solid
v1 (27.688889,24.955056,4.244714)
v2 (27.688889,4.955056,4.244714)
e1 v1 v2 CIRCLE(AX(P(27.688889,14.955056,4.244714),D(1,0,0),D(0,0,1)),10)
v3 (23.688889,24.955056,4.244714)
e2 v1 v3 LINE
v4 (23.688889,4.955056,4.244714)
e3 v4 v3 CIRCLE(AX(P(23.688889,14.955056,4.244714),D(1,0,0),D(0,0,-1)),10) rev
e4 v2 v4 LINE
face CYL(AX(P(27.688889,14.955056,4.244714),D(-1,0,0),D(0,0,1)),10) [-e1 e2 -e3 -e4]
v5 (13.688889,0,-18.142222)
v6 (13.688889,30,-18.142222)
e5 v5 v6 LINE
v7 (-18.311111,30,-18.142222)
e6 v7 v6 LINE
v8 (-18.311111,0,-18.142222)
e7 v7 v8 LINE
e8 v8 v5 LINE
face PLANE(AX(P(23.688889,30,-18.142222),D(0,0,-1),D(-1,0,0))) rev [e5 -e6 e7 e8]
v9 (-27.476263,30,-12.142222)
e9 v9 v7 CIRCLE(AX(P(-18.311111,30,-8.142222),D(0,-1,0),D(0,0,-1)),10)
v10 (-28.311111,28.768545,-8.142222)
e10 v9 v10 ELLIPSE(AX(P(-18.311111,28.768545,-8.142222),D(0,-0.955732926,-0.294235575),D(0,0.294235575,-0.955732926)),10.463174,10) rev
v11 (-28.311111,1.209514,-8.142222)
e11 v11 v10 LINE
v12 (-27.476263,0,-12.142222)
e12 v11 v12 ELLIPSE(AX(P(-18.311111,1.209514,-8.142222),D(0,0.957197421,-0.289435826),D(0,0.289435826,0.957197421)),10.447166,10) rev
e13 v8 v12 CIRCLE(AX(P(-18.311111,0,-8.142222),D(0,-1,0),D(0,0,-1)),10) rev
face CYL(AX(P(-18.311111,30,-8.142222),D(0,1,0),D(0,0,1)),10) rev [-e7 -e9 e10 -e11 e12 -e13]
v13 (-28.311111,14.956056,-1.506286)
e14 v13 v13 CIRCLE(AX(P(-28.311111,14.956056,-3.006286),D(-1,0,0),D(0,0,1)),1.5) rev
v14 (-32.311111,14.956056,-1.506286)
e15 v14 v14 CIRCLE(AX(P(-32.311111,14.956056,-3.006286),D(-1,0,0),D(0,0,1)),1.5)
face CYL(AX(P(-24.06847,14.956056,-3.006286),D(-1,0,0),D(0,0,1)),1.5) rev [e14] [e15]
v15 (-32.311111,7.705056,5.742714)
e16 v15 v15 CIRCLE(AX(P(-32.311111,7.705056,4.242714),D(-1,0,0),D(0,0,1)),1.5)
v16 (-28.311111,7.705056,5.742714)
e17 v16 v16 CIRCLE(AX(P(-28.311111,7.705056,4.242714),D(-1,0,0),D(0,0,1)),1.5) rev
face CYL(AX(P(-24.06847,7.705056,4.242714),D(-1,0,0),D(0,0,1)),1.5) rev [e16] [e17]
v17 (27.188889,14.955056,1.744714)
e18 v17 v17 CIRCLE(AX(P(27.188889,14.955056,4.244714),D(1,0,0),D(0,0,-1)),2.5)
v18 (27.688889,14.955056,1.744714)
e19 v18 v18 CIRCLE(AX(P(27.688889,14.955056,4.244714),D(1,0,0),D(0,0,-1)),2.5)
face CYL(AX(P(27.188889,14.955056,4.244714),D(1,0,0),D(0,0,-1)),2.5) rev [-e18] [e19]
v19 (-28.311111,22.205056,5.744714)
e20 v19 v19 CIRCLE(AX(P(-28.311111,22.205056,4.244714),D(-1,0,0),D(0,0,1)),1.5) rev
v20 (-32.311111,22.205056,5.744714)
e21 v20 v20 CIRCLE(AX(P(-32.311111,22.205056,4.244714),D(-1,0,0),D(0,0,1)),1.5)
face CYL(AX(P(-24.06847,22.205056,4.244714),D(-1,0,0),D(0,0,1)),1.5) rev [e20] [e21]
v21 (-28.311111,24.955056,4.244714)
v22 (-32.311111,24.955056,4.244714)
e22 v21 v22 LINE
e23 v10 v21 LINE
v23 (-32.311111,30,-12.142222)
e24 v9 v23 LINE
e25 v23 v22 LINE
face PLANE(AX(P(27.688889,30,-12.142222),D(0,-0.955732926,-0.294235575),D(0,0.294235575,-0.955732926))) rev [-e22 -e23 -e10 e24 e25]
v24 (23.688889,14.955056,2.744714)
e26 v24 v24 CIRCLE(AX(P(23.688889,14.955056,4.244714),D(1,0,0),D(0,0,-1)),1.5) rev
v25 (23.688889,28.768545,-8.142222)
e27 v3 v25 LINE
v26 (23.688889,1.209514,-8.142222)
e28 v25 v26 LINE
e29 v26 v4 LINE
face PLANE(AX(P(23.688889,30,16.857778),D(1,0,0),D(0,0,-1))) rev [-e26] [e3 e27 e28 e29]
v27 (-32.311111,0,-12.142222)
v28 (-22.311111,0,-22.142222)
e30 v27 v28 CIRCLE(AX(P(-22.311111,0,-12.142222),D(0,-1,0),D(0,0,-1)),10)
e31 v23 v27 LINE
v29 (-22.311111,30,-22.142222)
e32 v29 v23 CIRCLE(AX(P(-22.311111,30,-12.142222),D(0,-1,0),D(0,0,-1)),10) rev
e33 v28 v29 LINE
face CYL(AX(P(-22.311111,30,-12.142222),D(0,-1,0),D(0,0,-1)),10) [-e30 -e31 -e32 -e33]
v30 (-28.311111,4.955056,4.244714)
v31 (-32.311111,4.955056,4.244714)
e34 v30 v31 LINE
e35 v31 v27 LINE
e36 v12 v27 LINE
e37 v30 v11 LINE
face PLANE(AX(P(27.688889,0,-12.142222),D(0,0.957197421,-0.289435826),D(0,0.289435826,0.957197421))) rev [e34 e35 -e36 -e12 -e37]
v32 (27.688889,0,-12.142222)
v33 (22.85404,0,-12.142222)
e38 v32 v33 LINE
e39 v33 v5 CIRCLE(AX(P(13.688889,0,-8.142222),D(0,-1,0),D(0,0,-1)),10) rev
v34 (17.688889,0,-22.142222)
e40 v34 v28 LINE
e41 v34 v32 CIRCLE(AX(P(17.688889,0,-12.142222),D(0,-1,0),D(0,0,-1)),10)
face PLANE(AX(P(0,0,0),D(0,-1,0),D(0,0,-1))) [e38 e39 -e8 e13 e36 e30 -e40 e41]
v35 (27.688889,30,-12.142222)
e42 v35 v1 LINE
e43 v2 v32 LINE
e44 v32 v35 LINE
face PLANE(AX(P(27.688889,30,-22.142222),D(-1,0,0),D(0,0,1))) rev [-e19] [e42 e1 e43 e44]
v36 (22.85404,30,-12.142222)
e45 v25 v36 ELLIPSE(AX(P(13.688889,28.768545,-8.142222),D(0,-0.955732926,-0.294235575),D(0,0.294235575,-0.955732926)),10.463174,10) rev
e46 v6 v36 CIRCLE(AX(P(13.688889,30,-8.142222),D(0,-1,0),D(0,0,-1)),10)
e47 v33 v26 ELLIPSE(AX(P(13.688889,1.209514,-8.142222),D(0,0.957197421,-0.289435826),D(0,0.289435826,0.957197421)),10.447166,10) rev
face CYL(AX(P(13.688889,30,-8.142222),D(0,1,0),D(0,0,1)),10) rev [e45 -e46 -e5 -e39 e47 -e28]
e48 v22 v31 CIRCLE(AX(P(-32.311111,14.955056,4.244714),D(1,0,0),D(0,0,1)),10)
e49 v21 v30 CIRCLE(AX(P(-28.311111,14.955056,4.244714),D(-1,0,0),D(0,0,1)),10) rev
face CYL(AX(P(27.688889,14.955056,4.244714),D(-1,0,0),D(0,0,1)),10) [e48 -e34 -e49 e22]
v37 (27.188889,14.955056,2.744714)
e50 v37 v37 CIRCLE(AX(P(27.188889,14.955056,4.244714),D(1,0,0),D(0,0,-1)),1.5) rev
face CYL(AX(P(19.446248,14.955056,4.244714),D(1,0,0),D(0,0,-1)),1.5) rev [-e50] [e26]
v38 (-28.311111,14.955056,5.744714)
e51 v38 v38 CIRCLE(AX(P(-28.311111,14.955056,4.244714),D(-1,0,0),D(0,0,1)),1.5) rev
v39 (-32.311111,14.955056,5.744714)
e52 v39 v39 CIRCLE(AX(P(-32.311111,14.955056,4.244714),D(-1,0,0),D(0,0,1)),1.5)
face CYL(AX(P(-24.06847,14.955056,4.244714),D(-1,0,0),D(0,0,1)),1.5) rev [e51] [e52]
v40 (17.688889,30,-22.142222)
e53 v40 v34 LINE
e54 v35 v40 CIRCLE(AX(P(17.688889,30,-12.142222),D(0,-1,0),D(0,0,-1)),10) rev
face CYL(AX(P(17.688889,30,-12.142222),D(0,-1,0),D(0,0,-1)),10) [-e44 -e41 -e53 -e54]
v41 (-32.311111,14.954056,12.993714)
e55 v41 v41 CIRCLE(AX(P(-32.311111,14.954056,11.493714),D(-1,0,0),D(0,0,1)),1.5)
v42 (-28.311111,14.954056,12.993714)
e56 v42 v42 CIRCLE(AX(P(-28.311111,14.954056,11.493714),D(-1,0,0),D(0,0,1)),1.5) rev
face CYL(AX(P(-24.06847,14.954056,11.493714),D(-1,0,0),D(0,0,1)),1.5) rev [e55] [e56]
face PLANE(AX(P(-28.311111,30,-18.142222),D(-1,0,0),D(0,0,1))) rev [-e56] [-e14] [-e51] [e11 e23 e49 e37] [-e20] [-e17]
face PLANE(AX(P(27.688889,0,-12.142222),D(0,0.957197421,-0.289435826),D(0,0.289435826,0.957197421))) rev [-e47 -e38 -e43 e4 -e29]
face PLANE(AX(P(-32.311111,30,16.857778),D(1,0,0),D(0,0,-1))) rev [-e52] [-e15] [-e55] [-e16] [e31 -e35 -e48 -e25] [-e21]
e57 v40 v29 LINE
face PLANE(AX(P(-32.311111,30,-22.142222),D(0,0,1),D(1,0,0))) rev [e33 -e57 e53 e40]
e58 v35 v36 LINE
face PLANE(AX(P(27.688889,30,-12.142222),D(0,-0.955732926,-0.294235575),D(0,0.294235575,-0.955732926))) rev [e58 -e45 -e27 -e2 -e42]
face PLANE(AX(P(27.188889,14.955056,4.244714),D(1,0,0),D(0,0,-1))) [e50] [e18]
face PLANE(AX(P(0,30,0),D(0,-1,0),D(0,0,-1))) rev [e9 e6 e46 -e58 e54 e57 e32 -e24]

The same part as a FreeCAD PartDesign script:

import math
import FreeCAD as App
import Part
import Sketcher

V = App.Vector


def edges_at(feature, points):
    """Names of the edges that pass closest to the given points."""
    edges = feature.Shape.Edges
    near = lambda p: min(range(len(edges)), key=lambda i: edges[i].distToShape(Part.Vertex(*p))[0])
    return sorted({f"Edge{near(p) + 1}" for p in points})


def add_polygon(sketch, points):
    """Adds a closed chain of lines whose ends are joined by coincident constraints."""
    first, n = sketch.GeometryCount, len(points)
    for a, b in zip(points, points[1:] + points[:1]):
        sketch.addGeometry(Part.LineSegment(App.Vector(*a, 0), App.Vector(*b, 0)), False)
    for i in range(n):
        sketch.addConstraint(Sketcher.Constraint("Coincident", first + i, 2, first + (i + 1) % n, 1))

doc = App.newDocument("Part")
body = doc.addObject("PartDesign::Body", "Body")

# Sketch on XZ plane
sketch1 = doc.addObject("Sketcher::SketchObject", "Sketch")
body.addObject(sketch1)
sketch1.AttachmentSupport = (doc.XZ_Plane, [""])
sketch1.MapMode = "FlatFace"
add_polygon(sketch1, [(23.688889, -18.142222), (23.688889, 16.857778), (27.688889, 16.857778), (27.688889, -22.142222), (-32.311111, -22.142222), (-32.311111, 16.857778), (-28.311111, 16.857778), (-28.311111, -18.142222)])  # lines 0-7
sketch1.addConstraint([
    Sketcher.Constraint("Vertical", 0),
    Sketcher.Constraint("Horizontal", 1),
    Sketcher.Constraint("Vertical", 2),
    Sketcher.Constraint("Horizontal", 3),
    Sketcher.Constraint("Vertical", 4),
    Sketcher.Constraint("Horizontal", 5),
    Sketcher.Constraint("Vertical", 6),
    Sketcher.Constraint("Horizontal", 7),
    Sketcher.Constraint("Horizontal", 1, 2, 4, 2),
    Sketcher.Constraint("Equal", 1, 5),
    Sketcher.Constraint("DistanceX", 1, 1, 1, 2, 4.0),
    Sketcher.Constraint("DistanceX", 3, 2, 3, 1, 60.0),
    Sketcher.Constraint("DistanceY", 0, 1, 0, 2, 35.0),
    Sketcher.Constraint("DistanceY", 2, 2, 2, 1, 39.0),
    Sketcher.Constraint("DistanceX", -1, 1, 0, 2, 23.688889),
    Sketcher.Constraint("DistanceY", -1, 1, 0, 2, 16.857778),
])
pad1 = doc.addObject("PartDesign::Pad", "Pad")
body.addObject(pad1)
pad1.Profile = sketch1
pad1.Length = 30
pad1.Reversed = True
doc.recompute()

fillet = doc.addObject("PartDesign::Fillet", "Fillet")
body.addObject(fillet)
fillet.Base = (pad1, edges_at(pad1, [(23.689, 15, -18.142), (27.689, 15, -22.142)]))
fillet.Radius = 10
doc.recompute()

fillet2 = doc.addObject("PartDesign::Fillet", "Fillet001")
body.addObject(fillet2)
fillet2.Base = (fillet, edges_at(fillet, [(-28.311, 15, -18.142), (-32.311, 15, -22.142)]))
fillet2.Radius = 10

# Sketch on YZ plane
sketch2 = doc.addObject("Sketcher::SketchObject", "Sketch001")
body.addObject(sketch2)
sketch2.AttachmentSupport = (doc.YZ_Plane, [""])
sketch2.MapMode = "FlatFace"
sketch2.AttachmentOffset = App.Placement(V(0, 0, -32.311111), App.Rotation())
sketch2.addGeometry([
    Part.Circle(V(14.956056, -3.006286, 0), V(0, 0, 1), 1.5),  # 0
    Part.Circle(V(14.954056, 11.493714, 0), V(0, 0, 1), 1.5),  # 1
    Part.Circle(V(22.205056, 4.244714, 0), V(0, 0, 1), 1.5),  # 2
    Part.Circle(V(7.705056, 4.242714, 0), V(0, 0, 1), 1.5),  # 3
    Part.Circle(V(14.955056, 4.244714, 0), V(0, 0, 1), 1.5),  # 4
], False)
sketch2.addConstraint([
    Sketcher.Constraint("Equal", 0, 1),
    Sketcher.Constraint("Equal", 1, 2),
    Sketcher.Constraint("Equal", 2, 3),
    Sketcher.Constraint("Equal", 3, 4),
    Sketcher.Constraint("Horizontal", 2, 3, 4, 3),
    Sketcher.Constraint("Diameter", 0, 3.0),
    Sketcher.Constraint("DistanceY", 0, 3, 1, 3, 14.5),
    Sketcher.Constraint("DistanceX", 3, 3, 2, 3, 14.5),
    Sketcher.Constraint("DistanceX", 4, 3, 2, 3, 7.25),
    Sketcher.Constraint("DistanceX", 1, 3, 0, 3, 0.002),
    Sketcher.Constraint("DistanceX", 0, 3, 2, 3, 7.249),
    Sketcher.Constraint("DistanceY", 0, 3, 2, 3, 7.251),
    Sketcher.Constraint("DistanceY", 0, 3, 3, 3, 7.249),
    Sketcher.Constraint("DistanceX", -1, 1, 0, 3, 14.956056),
    Sketcher.Constraint("DistanceY", 0, 3, -1, 1, 3.006286),
])
pocket1 = doc.addObject("PartDesign::Pocket", "Pocket")
body.addObject(pocket1)
pocket1.Profile = sketch2
pocket1.Length = 4
pocket1.Reversed = True

# Sketch on YZ plane
sketch3 = doc.addObject("Sketcher::SketchObject", "Sketch002")
body.addObject(sketch3)
sketch3.AttachmentSupport = (doc.YZ_Plane, [""])
sketch3.MapMode = "FlatFace"
sketch3.AttachmentOffset = App.Placement(V(0, 0, -32.311111), App.Rotation())
sketch3.addGeometry([
    Part.LineSegment(V(0, -12.142222, 0), V(0, 16.857778, 0)),  # 0
    Part.LineSegment(V(0, 16.857778, 0), V(30, 16.857778, 0)),  # 1
    Part.LineSegment(V(30, 16.857778, 0), V(30, -12.142222, 0)),  # 2
    Part.LineSegment(V(30, -12.142222, 0), V(24.955056, 4.244714, 0)),  # 3
    Part.ArcOfCircle(Part.Circle(V(14.955056, 4.244714, 0), V(0, 0, 1), 10), math.radians(0), math.radians(180)),  # 4
    Part.LineSegment(V(4.955056, 4.244714, 0), V(0, -12.142222, 0)),  # 5
], False)
sketch3.addConstraint([
    Sketcher.Constraint("Coincident", 0, 2, 1, 1),
    Sketcher.Constraint("Coincident", 1, 2, 2, 1),
    Sketcher.Constraint("Coincident", 2, 2, 3, 1),
    Sketcher.Constraint("Coincident", 3, 2, 4, 1),
    Sketcher.Constraint("Coincident", 4, 2, 5, 1),
    Sketcher.Constraint("Coincident", 5, 2, 0, 1),
    Sketcher.Constraint("Vertical", 0),
    Sketcher.Constraint("Horizontal", 1),
    Sketcher.Constraint("Vertical", 2),
    Sketcher.Constraint("PointOnObject", 0, 2, -2),
    Sketcher.Constraint("Horizontal", 4, 3, 3, 2),
    Sketcher.Constraint("Horizontal", 3, 2, 4, 2),
    Sketcher.Constraint("Horizontal", 2, 2, 5, 2),
    Sketcher.Constraint("Radius", 4, 10.0),
    Sketcher.Constraint("DistanceX", 1, 1, 1, 2, 30.0),
    Sketcher.Constraint("DistanceY", 0, 1, 0, 2, 29.0),
    Sketcher.Constraint("Distance", 3, 17.145936),
    Sketcher.Constraint("Distance", 5, 17.119704),
    Sketcher.Constraint("DistanceY", -1, 1, 4, 3, 4.244714),
])
pocket2 = doc.addObject("PartDesign::Pocket", "Pocket001")
body.addObject(pocket2)
pocket2.Profile = sketch3
pocket2.Type = "ThroughAll"
pocket2.Reversed = True

# Sketch on YZ plane
sketch4 = doc.addObject("Sketcher::SketchObject", "Sketch003")
body.addObject(sketch4)
sketch4.AttachmentSupport = (doc.YZ_Plane, [""])
sketch4.MapMode = "FlatFace"
sketch4.AttachmentOffset = App.Placement(V(0, 0, 23.688889), App.Rotation())
sketch4.addGeometry(Part.Circle(V(14.955056, 4.244714, 0), V(0, 0, 1), 1.5), False)
sketch4.addConstraint([
    Sketcher.Constraint("Diameter", 0, 3.0),
    Sketcher.Constraint("DistanceX", -1, 1, 0, 3, 14.955056),
    Sketcher.Constraint("DistanceY", -1, 1, 0, 3, 4.244714),
])
pocket3 = doc.addObject("PartDesign::Pocket", "Pocket002")
body.addObject(pocket3)
pocket3.Profile = sketch4
pocket3.Length = 4
pocket3.Reversed = True

# Sketch on YZ plane
sketch5 = doc.addObject("Sketcher::SketchObject", "Sketch004")
body.addObject(sketch5)
sketch5.AttachmentSupport = (doc.YZ_Plane, [""])
sketch5.MapMode = "FlatFace"
sketch5.AttachmentOffset = App.Placement(V(0, 0, 27.688889), App.Rotation())
sketch5.addGeometry(Part.Circle(V(14.955056, 4.244714, 0), V(0, 0, 1), 2.5), False)
sketch5.addConstraint([
    Sketcher.Constraint("Diameter", 0, 5.0),
    Sketcher.Constraint("DistanceX", -1, 1, 0, 3, 14.955056),
    Sketcher.Constraint("DistanceY", -1, 1, 0, 3, 4.244714),
])
pocket4 = doc.addObject("PartDesign::Pocket", "Pocket003")
body.addObject(pocket4)
pocket4.Profile = sketch5
pocket4.Length = 0.5

doc.recompute()
